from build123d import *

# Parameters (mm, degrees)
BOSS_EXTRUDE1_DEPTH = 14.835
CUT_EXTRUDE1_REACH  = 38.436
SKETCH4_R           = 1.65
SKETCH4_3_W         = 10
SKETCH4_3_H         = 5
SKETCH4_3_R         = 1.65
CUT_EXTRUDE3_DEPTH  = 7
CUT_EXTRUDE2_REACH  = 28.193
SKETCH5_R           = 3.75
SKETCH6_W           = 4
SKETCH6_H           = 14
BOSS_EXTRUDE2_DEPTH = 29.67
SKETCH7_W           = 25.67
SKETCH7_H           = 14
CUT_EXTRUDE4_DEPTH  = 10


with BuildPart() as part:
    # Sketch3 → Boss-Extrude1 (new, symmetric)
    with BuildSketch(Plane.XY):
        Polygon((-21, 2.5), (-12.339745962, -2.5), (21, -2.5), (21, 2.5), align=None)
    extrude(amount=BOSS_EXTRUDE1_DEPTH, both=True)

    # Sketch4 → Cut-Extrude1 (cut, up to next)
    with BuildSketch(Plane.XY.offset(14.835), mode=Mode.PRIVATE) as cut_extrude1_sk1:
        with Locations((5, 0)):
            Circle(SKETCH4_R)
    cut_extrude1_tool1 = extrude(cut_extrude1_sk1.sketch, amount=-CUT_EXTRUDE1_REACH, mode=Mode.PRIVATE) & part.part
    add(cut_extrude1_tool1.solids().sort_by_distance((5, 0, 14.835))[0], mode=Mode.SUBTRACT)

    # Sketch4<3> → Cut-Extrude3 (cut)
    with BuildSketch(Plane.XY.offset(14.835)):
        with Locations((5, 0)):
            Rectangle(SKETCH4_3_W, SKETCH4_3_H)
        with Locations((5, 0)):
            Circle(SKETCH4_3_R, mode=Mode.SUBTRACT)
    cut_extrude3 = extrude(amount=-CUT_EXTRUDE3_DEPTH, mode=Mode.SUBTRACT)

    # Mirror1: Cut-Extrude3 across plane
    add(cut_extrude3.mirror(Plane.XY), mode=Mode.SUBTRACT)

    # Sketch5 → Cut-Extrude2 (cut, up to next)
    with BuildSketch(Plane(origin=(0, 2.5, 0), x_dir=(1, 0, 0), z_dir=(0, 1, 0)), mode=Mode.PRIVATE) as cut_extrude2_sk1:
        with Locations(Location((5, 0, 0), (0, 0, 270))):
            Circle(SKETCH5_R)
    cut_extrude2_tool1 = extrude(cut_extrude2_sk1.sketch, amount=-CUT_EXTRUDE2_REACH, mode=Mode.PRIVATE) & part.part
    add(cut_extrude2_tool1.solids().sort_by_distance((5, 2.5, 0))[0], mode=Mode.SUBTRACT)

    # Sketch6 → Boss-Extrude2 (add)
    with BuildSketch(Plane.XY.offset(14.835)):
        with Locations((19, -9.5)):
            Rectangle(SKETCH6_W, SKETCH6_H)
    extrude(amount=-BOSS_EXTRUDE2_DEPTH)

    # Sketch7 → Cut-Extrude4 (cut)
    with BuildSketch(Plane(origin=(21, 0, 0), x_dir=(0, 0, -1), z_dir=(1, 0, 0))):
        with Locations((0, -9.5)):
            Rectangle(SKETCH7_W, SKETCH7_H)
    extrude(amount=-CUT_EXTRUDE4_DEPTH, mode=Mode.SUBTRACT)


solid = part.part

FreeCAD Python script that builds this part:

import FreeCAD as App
import Part
import Sketcher

V = App.Vector
Q = App.Units.Quantity


def add_polygon(sketch, points):
    """Adds a closed chain of lines whose ends are joined by coincident constraints."""
    first, n = sketch.GeometryCount, len(points)
    for a, b in zip(points, points[1:] + points[:1]):
        sketch.addGeometry(Part.LineSegment(App.Vector(*a, 0), App.Vector(*b, 0)), False)
    for i in range(n):
        sketch.addConstraint(Sketcher.Constraint("Coincident", first + i, 2, first + (i + 1) % n, 1))

doc = App.newDocument("Part")
params = doc.addObject("Spreadsheet::Sheet", "Params")
for row, (alias, value) in enumerate([
    ("sketch1_width", "42 mm"),
    ("sketch1_height", "5 mm"),
    ("pad1_length", "29.67 mm"),
    ("sketch2_diameter", "3.3 mm"),
    ("sketch3_diameter", "3.3 mm"),
    ("sketch3_width", "10 mm"),
    ("sketch3_height", "5 mm"),
    ("pocket2_length", "7 mm"),
    ("sketch4_diameter", "7.5 mm"),
    ("pocket3_length", "5 mm"),
    ("sketch5_width", "4 mm"),
    ("sketch5_height", "14 mm"),
    ("pad2_length", "29.67 mm"),
    ("sketch6_width", "14 mm"),
    ("sketch6_height", "25.67 mm"),
    ("pocket4_length", "10 mm"),
], start=1):
    params.set(f"A{row}", alias)
    params.set(f"B{row}", "=" + value)
    params.setAlias(f"B{row}", alias)

body = doc.addObject("PartDesign::Body", "Body")

# Sketch on XY plane
sketch1 = doc.addObject("Sketcher::SketchObject", "Sketch")
body.addObject(sketch1)
sketch1.AttachmentSupport = (doc.XY_Plane, [""])
sketch1.MapMode = "FlatFace"
add_polygon(sketch1, [(-21, 2), (-12, -2), (21, -2), (21, 2)])  # lines 0-3
sketch1.addConstraint([
    Sketcher.Constraint("Horizontal", 1),
    Sketcher.Constraint("Vertical", 2),
    Sketcher.Constraint("Horizontal", 3),
    Sketcher.Constraint("Symmetric", 1, 2, 3, 2, -1, 1),
    Sketcher.Constraint("DistanceX", 3, 2, 3, 1, Q("42 mm")),
    Sketcher.Constraint("DistanceY", 2, 1, 2, 2, Q("5 mm")),
    Sketcher.Constraint("Angle", 0, Q("-30 deg")),
])
sketch1.setExpression("Constraints[8]", "Params.sketch1_width")
sketch1.setExpression("Constraints[9]", "Params.sketch1_height")
pad1 = doc.addObject("PartDesign::Pad", "Pad")
body.addObject(pad1)
pad1.Profile = sketch1
pad1.setExpression("Length", "Params.pad1_length")
pad1.Midplane = True

# Sketch on XY plane
sketch2 = doc.addObject("Sketcher::SketchObject", "Sketch001")
body.addObject(sketch2)
sketch2.AttachmentSupport = (doc.XY_Plane, [""])
sketch2.MapMode = "FlatFace"
sketch2.AttachmentOffset = App.Placement(V(0, 0, 14.835), App.Rotation())
sketch2.addGeometry(Part.Circle(V(5, 0, 0), V(0, 0, 1), 1.6), False)
sketch2.addConstraint([
    Sketcher.Constraint("PointOnObject", 0, 3, -1),
    Sketcher.Constraint("Diameter", 0, Q("3.3 mm")),
    Sketcher.Constraint("DistanceX", -1, 1, 0, 3, Q("5 mm")),
])
sketch2.setExpression("Constraints[1]", "Params.sketch2_diameter")
pocket1 = doc.addObject("PartDesign::Pocket", "Pocket")
body.addObject(pocket1)
pocket1.Profile = sketch2
pocket1.Type = "UpToFirst"

# Sketch on XY plane
sketch3 = doc.addObject("Sketcher::SketchObject", "Sketch002")
body.addObject(sketch3)
sketch3.AttachmentSupport = (doc.XY_Plane, [""])
sketch3.MapMode = "FlatFace"
sketch3.AttachmentOffset = App.Placement(V(0, 0, 14.835), App.Rotation())
add_polygon(sketch3, [(0, 2.5), (0, -2.5), (10, -2.5), (10, 2.5)])  # lines 0-3
sketch3.addGeometry(Part.Circle(V(5, 0, 0), V(0, 0, 1), 1.6), False)  # 4
sketch3.addConstraint([
    Sketcher.Constraint("Vertical", 0),
    Sketcher.Constraint("Horizontal", 1),
    Sketcher.Constraint("Vertical", 2),
    Sketcher.Constraint("Horizontal", 3),
    Sketcher.Constraint("Symmetric", 0, 2, 3, 2, -1, 1),
    Sketcher.Constraint("PointOnObject", 4, 3, -1),
    Sketcher.Constraint("Diameter", 4, Q("3.3 mm")),
    Sketcher.Constraint("DistanceX", 1, 1, 1, 2, Q("10 mm")),
    Sketcher.Constraint("DistanceY", 0, 2, 0, 1, Q("5 mm")),
    Sketcher.Constraint("DistanceX", -1, 1, 4, 3, Q("5 mm")),
])
sketch3.setExpression("Constraints[10]", "Params.sketch3_diameter")
sketch3.setExpression("Constraints[11]", "Params.sketch3_width")
sketch3.setExpression("Constraints[12]", "Params.sketch3_height")
pocket2 = doc.addObject("PartDesign::Pocket", "Pocket001")
body.addObject(pocket2)
pocket2.Profile = sketch3
pocket2.setExpression("Length", "Params.pocket2_length")
doc.recompute()

mirrored = doc.addObject("PartDesign::Mirrored", "Mirrored")
body.addObject(mirrored)
mirrored.Originals = [pocket2]
mirrored.MirrorPlane = (doc.XY_Plane, [""])
body.Tip = mirrored

# Sketch on XZ plane
sketch4 = doc.addObject("Sketcher::SketchObject", "Sketch003")
body.addObject(sketch4)
sketch4.AttachmentSupport = (doc.XZ_Plane, [""])
sketch4.MapMode = "FlatFace"
sketch4.AttachmentOffset = App.Placement(V(0, 0, -2.5), App.Rotation())
sketch4.addGeometry(Part.Circle(V(5, 0, 0), V(0, 0, 1), 3.8), False)
sketch4.addConstraint([
    Sketcher.Constraint("PointOnObject", 0, 3, -1),
    Sketcher.Constraint("Diameter", 0, Q("7.5 mm")),
    Sketcher.Constraint("DistanceX", -1, 1, 0, 3, Q("5 mm")),
])
sketch4.setExpression("Constraints[1]", "Params.sketch4_diameter")
pocket3 = doc.addObject("PartDesign::Pocket", "Pocket002")
body.addObject(pocket3)
pocket3.Profile = sketch4
pocket3.setExpression("Length", "Params.pocket3_length")
pocket3.Reversed = True

# Sketch on XY plane
sketch5 = doc.addObject("Sketcher::SketchObject", "Sketch004")
body.addObject(sketch5)
sketch5.AttachmentSupport = (doc.XY_Plane, [""])
sketch5.MapMode = "FlatFace"
sketch5.AttachmentOffset = App.Placement(V(0, 0, 14.835), App.Rotation())
add_polygon(sketch5, [(17, -2.5), (17, -16.5), (21, -16.5), (21, -2.5)])  # lines 0-3
sketch5.addConstraint([
    Sketcher.Constraint("Vertical", 0),
    Sketcher.Constraint("Horizontal", 1),
    Sketcher.Constraint("Vertical", 2),
    Sketcher.Constraint("Horizontal", 3),
    Sketcher.Constraint("DistanceX", 1, 1, 1, 2, Q("4 mm")),
    Sketcher.Constraint("DistanceY", 0, 2, 0, 1, Q("14 mm")),
    Sketcher.Constraint("DistanceX", -1, 1, 0, 2, Q("17 mm")),
    Sketcher.Constraint("DistanceY", 0, 2, -1, 1, Q("16.5 mm")),
])
sketch5.setExpression("Constraints[8]", "Params.sketch5_width")
sketch5.setExpression("Constraints[9]", "Params.sketch5_height")
pad2 = doc.addObject("PartDesign::Pad", "Pad001")
body.addObject(pad2)
pad2.Profile = sketch5
pad2.setExpression("Length", "Params.pad2_length")
pad2.Reversed = True

# Sketch on YZ plane
sketch6 = doc.addObject("Sketcher::SketchObject", "Sketch005")
body.addObject(sketch6)
sketch6.AttachmentSupport = (doc.YZ_Plane, [""])
sketch6.MapMode = "FlatFace"
sketch6.AttachmentOffset = App.Placement(V(0, 0, 21), App.Rotation())
add_polygon(sketch6, [(-2, 13), (-16, 13), (-16, -13), (-2, -13)])  # lines 0-3
sketch6.addConstraint([
    Sketcher.Constraint("Horizontal", 0),
    Sketcher.Constraint("Vertical", 1),
    Sketcher.Constraint("Horizontal", 2),
    Sketcher.Constraint("Vertical", 3),
    Sketcher.Constraint("DistanceX", 0, 2, 0, 1, Q("14 mm")),
    Sketcher.Constraint("DistanceY", 1, 2, 1, 1, Q("25.67 mm")),
    Sketcher.Constraint("DistanceX", 0, 2, -1, 1, Q("16.5 mm")),
    Sketcher.Constraint("DistanceY", -1, 1, 0, 2, Q("12.835 mm")),
])
sketch6.setExpression("Constraints[8]", "Params.sketch6_width")
sketch6.setExpression("Constraints[9]", "Params.sketch6_height")
pocket4 = doc.addObject("PartDesign::Pocket", "Pocket003")
body.addObject(pocket4)
pocket4.Profile = sketch6
pocket4.setExpression("Length", "Params.pocket4_length")

doc.recompute()
